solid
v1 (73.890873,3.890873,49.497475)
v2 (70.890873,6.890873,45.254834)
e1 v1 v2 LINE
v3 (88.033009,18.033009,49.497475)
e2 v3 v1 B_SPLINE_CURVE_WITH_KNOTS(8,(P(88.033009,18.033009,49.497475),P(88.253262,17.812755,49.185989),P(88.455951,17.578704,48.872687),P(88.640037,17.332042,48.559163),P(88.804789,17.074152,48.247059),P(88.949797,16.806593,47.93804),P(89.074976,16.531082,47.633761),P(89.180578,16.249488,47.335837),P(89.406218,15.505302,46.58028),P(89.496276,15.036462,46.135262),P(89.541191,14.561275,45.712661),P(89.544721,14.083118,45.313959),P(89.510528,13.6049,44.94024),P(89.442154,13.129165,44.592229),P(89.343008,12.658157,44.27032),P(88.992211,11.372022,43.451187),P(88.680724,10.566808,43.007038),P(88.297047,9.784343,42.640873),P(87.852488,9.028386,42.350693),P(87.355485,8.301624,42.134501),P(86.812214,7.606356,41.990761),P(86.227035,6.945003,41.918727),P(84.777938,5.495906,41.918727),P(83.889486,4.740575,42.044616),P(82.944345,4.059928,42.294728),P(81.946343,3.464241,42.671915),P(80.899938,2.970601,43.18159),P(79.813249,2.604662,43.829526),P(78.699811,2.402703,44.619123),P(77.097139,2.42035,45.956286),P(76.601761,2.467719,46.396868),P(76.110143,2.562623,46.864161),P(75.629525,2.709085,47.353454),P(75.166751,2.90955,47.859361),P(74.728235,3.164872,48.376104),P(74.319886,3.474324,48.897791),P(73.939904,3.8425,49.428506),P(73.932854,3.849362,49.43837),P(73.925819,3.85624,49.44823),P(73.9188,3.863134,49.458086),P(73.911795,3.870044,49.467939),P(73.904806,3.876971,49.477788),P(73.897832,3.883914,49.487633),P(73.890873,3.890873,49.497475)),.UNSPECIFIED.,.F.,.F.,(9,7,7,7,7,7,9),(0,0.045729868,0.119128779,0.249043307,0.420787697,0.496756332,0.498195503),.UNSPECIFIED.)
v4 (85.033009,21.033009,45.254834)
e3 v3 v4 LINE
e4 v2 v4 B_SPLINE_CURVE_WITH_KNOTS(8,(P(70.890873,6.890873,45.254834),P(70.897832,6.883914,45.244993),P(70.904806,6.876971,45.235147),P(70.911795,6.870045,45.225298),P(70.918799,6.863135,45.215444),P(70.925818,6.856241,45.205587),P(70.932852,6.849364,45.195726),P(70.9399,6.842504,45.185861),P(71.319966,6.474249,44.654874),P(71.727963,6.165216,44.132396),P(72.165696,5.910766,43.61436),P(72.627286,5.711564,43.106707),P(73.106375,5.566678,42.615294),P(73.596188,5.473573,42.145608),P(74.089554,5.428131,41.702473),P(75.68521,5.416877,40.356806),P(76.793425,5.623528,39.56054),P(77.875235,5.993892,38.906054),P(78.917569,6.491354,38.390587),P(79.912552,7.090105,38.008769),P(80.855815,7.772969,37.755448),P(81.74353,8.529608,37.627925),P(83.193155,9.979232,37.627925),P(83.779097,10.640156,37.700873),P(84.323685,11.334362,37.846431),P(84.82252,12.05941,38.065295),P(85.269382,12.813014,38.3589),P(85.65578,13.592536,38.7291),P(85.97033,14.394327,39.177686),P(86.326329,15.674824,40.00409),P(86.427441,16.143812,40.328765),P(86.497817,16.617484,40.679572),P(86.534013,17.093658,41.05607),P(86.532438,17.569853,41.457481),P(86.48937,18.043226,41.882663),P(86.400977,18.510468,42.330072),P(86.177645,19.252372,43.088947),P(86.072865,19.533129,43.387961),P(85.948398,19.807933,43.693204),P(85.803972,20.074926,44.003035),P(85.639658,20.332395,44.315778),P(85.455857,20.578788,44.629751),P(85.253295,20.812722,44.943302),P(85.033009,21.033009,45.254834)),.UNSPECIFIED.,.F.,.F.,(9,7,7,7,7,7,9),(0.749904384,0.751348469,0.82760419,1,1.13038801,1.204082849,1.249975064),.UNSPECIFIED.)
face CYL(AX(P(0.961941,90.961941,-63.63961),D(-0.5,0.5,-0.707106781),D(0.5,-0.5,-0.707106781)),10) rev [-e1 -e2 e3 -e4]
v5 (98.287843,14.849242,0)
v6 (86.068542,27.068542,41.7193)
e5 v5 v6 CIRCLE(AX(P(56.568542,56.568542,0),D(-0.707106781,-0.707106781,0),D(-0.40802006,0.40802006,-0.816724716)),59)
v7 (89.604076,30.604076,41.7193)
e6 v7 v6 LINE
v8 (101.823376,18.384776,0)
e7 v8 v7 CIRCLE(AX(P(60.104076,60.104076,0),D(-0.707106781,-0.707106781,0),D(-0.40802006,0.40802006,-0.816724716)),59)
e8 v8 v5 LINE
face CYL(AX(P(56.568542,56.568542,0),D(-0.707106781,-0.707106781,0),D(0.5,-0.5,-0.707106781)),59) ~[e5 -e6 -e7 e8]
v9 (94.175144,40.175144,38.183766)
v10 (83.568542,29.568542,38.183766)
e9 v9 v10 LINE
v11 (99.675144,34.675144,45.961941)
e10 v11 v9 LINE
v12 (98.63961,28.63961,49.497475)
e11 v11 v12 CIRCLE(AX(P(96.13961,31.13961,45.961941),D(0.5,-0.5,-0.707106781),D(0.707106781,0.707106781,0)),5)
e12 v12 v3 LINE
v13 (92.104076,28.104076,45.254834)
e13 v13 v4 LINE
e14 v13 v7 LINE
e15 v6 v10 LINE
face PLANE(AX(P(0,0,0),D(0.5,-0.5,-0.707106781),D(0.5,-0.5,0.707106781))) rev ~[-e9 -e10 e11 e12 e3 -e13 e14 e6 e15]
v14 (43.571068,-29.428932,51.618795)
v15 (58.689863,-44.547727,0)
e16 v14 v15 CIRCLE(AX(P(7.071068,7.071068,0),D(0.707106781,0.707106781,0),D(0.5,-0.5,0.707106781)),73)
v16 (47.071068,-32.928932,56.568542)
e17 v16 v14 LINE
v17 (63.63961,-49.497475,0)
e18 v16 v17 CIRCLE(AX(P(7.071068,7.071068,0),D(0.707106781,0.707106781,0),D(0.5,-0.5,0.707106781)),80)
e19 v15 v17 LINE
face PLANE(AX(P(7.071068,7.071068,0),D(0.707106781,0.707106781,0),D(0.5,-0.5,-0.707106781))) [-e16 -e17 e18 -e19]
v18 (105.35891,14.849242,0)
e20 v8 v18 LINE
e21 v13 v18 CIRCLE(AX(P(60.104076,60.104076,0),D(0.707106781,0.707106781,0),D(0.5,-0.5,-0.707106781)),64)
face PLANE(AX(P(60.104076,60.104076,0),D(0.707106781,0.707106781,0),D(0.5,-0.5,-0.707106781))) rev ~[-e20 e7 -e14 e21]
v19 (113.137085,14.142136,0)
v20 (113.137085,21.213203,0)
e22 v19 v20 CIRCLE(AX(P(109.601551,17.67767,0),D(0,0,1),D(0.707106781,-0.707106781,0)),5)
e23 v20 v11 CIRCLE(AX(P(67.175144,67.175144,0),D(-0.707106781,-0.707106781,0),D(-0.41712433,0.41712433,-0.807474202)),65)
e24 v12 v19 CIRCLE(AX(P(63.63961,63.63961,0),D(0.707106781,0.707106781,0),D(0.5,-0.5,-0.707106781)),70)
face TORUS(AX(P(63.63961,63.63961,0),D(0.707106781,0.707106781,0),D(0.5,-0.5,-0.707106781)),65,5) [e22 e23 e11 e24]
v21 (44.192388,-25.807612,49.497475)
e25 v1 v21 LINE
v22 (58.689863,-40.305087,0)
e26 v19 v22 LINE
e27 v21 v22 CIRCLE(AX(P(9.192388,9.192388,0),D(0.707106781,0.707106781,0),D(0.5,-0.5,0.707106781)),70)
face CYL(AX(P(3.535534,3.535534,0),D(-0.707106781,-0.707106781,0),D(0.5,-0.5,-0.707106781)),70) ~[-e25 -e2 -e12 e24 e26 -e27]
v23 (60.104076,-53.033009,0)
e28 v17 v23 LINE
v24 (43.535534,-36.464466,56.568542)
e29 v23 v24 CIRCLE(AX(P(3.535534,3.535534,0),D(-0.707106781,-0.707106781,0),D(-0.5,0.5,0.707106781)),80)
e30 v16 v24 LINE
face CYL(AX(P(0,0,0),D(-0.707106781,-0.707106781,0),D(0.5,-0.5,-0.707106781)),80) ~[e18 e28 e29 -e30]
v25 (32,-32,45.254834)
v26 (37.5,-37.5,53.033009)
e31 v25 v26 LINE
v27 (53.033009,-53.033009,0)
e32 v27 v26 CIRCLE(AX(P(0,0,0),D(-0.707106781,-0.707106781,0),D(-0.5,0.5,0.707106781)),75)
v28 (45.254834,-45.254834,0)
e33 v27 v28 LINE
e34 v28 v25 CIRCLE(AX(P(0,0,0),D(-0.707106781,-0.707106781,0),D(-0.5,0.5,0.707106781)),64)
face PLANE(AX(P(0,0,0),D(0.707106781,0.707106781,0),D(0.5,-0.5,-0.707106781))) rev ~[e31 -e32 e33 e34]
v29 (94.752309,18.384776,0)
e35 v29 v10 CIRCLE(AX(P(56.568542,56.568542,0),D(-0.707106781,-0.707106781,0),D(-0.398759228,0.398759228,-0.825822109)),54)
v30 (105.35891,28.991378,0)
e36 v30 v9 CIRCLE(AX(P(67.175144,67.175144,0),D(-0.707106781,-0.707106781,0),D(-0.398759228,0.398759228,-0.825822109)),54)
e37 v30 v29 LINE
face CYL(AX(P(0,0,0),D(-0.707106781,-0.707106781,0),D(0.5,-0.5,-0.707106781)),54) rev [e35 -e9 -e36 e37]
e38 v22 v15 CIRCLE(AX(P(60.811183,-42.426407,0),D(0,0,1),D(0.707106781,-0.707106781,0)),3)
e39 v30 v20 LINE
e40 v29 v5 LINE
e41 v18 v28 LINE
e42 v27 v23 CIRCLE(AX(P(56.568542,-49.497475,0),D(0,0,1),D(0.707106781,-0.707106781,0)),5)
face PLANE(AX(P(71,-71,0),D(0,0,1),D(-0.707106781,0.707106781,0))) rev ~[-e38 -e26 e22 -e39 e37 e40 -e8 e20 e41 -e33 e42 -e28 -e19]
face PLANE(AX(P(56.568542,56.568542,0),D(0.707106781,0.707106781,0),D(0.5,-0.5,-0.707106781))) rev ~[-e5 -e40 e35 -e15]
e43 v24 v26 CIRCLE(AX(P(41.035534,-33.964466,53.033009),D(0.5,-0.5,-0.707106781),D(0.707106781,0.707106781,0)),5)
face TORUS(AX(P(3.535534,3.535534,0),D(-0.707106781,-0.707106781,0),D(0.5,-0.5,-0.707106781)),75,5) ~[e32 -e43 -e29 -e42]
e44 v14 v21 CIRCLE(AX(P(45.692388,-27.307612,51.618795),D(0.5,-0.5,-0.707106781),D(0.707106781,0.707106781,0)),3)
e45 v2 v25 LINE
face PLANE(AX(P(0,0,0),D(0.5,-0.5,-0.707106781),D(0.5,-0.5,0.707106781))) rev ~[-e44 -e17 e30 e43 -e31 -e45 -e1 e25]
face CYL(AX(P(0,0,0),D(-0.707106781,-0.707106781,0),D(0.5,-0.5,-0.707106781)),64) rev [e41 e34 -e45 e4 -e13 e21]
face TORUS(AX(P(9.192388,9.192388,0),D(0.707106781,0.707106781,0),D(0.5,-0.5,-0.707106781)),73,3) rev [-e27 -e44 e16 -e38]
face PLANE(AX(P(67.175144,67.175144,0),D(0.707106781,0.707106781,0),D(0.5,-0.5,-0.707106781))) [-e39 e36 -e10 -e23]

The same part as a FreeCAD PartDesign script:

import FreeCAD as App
import Part
import Sketcher


def edges_at(feature, points):
    """Names of the edges that pass closest to the given points."""
    edges = feature.Shape.Edges
    near = lambda p: min(range(len(edges)), key=lambda i: edges[i].distToShape(Part.Vertex(*p))[0])
    return sorted({f"Edge{near(p) + 1}" for p in points})


def add_polygon(sketch, points):
    """Adds a closed chain of lines whose ends are joined by coincident constraints."""
    first, n = sketch.GeometryCount, len(points)
    for a, b in zip(points, points[1:] + points[:1]):
        sketch.addGeometry(Part.LineSegment(App.Vector(*a, 0), App.Vector(*b, 0)), False)
    for i in range(n):
        sketch.addConstraint(Sketcher.Constraint("Coincident", first + i, 2, first + (i + 1) % n, 1))

doc = App.newDocument("Part")
body = doc.addObject("PartDesign::Body", "Body")

sketch1 = doc.addObject("Sketcher::SketchObject", "Sketch")
body.addObject(sketch1)
sketch1.AttachmentSupport = (doc.XY_Plane, [""])
sketch1.MapMode = "FlatFace"
add_polygon(sketch1, [(0, 100), (0, 0), (100, 0), (100, 100)])
sketch1.addConstraint(Sketcher.Constraint("Vertical", 0))
sketch1.addConstraint(Sketcher.Constraint("Horizontal", 1))
sketch1.addConstraint(Sketcher.Constraint("Vertical", 2))
sketch1.addConstraint(Sketcher.Constraint("Horizontal", 3))
sketch1.addConstraint(Sketcher.Constraint("Coincident", 0, 2, -1, 1))
sketch1.addConstraint(Sketcher.Constraint("Equal", 3, 0))
sketch1.addConstraint(Sketcher.Constraint("DistanceX", 1, 1, 1, 2, 100.0))
pad1 = doc.addObject("PartDesign::Pad", "Pad")
body.addObject(pad1)
pad1.Profile = sketch1
pad1.Length = 100
body2 = doc.addObject("PartDesign::Body", "Body001")
doc.recompute()

body.Placement = App.Placement(App.Vector(0, 0, 0), App.Rotation(App.Vector(0, 0, 1), 45))
boolean = doc.addObject("PartDesign::Boolean", "Boolean")
body2.addObject(boolean)
boolean.Type = "Fuse"
boolean.addObjects([body])
body3 = doc.addObject("PartDesign::Body", "Body002")

sketch2 = doc.addObject("Sketcher::SketchObject", "Sketch001")
body3.addObject(sketch2)
sketch2.AttachmentSupport = (doc.getObject("XY_Plane002"), [""])
sketch2.MapMode = "FlatFace"
add_polygon(sketch2, [(0, 200), (0, 0), (100, 0), (100, 200)])
sketch2.addConstraint(Sketcher.Constraint("Vertical", 0))
sketch2.addConstraint(Sketcher.Constraint("Horizontal", 1))
sketch2.addConstraint(Sketcher.Constraint("Vertical", 2))
sketch2.addConstraint(Sketcher.Constraint("Horizontal", 3))
sketch2.addConstraint(Sketcher.Constraint("Coincident", 0, 2, -1, 1))
sketch2.addConstraint(Sketcher.Constraint("DistanceX", 1, 1, 1, 2, 100.0))
sketch2.addConstraint(Sketcher.Constraint("DistanceY", 0, 2, 0, 1, 200.0))
pad2 = doc.addObject("PartDesign::Pad", "Pad001")
body3.addObject(pad2)
pad2.Profile = sketch2
pad2.Length = 100
body4 = doc.addObject("PartDesign::Body", "Body003")
doc.recompute()

body3.Placement = App.Placement(App.Vector(71, -71, 0), App.Rotation(App.Vector(0, 0, 1), 45))
boolean2 = doc.addObject("PartDesign::Boolean", "Boolean001")
body4.addObject(boolean2)
boolean2.Type = "Fuse"
boolean2.addObjects([body3])
body5 = doc.addObject("PartDesign::Body", "Body004")

sketch3 = doc.addObject("Sketcher::SketchObject", "Sketch002")
body5.addObject(sketch3)
sketch3.AttachmentSupport = (doc.getObject("XY_Plane004"), [""])
sketch3.MapMode = "FlatFace"
add_polygon(sketch3, [(0, -100), (0, 0), (-100, 0), (-100, -100)])
sketch3.addConstraint(Sketcher.Constraint("Vertical", 0))
sketch3.addConstraint(Sketcher.Constraint("Horizontal", 1))
sketch3.addConstraint(Sketcher.Constraint("Vertical", 2))
sketch3.addConstraint(Sketcher.Constraint("Horizontal", 3))
sketch3.addConstraint(Sketcher.Constraint("Coincident", 0, 2, -1, 1))
sketch3.addConstraint(Sketcher.Constraint("Equal", 3, 0))
sketch3.addConstraint(Sketcher.Constraint("DistanceX", 1, 2, 1, 1, 100.0))
pad3 = doc.addObject("PartDesign::Pad", "Pad002")
body5.addObject(pad3)
pad3.Profile = sketch3
pad3.Length = 100
body6 = doc.addObject("PartDesign::Body", "Body005")

sketch4 = doc.addObject("Sketcher::SketchObject", "Sketch003")
body6.addObject(sketch4)
sketch4.AttachmentSupport = (doc.getObject("XY_Plane005"), [""])
sketch4.MapMode = "FlatFace"
sketch4.AttachmentOffset = App.Placement(App.Vector(0, 0, 20), App.Rotation())
add_polygon(sketch4, [(-83, 10), (-83, -10), (-63, -10), (-63, 10)])
sketch4.addConstraint(Sketcher.Constraint("Vertical", 0))
sketch4.addConstraint(Sketcher.Constraint("Horizontal", 1))
sketch4.addConstraint(Sketcher.Constraint("Vertical", 2))
sketch4.addConstraint(Sketcher.Constraint("Horizontal", 3))
sketch4.addConstraint(Sketcher.Constraint("Equal", 3, 0))
sketch4.addConstraint(Sketcher.Constraint("DistanceX", 1, 1, 1, 2, 20.0))
sketch4.addConstraint(Sketcher.Constraint("DistanceX", 0, 2, -1, 1, 83.0))
sketch4.addConstraint(Sketcher.Constraint("DistanceY", 0, 2, -1, 1, 10.0))
pad4 = doc.addObject("PartDesign::Pad", "Pad003")
body6.addObject(pad4)
pad4.Profile = sketch4
pad4.Length = 80
body7 = doc.addObject("PartDesign::Body", "Body006")

sketch5 = doc.addObject("Sketcher::SketchObject", "Sketch004")
body7.addObject(sketch5)
sketch5.AttachmentSupport = (doc.getObject("XY_Plane006"), [""])
sketch5.MapMode = "FlatFace"
sketch5.AttachmentOffset = App.Placement(App.Vector(0, 0, 20), App.Rotation())
add_polygon(sketch5, [(63, 10), (63, -10), (83, -10), (83, 10)])
sketch5.addConstraint(Sketcher.Constraint("Vertical", 0))
sketch5.addConstraint(Sketcher.Constraint("Horizontal", 1))
sketch5.addConstraint(Sketcher.Constraint("Vertical", 2))
sketch5.addConstraint(Sketcher.Constraint("Horizontal", 3))
sketch5.addConstraint(Sketcher.Constraint("Equal", 3, 0))
sketch5.addConstraint(Sketcher.Constraint("DistanceX", 1, 1, 1, 2, 20.0))
sketch5.addConstraint(Sketcher.Constraint("DistanceX", -1, 1, 0, 2, 63.0))
sketch5.addConstraint(Sketcher.Constraint("DistanceY", 0, 2, -1, 1, 10.0))
pad5 = doc.addObject("PartDesign::Pad", "Pad004")
body7.addObject(pad5)
pad5.Profile = sketch5
pad5.Length = 80
body8 = doc.addObject("PartDesign::Body", "Body007")

sketch6 = doc.addObject("Sketcher::SketchObject", "Sketch005")
body8.addObject(sketch6)
sketch6.AttachmentSupport = (doc.getObject("XY_Plane007"), [""])
sketch6.MapMode = "FlatFace"
add_polygon(sketch6, [(0, 25), (0, 0), (10, 0), (10, 25)])
sketch6.addConstraint(Sketcher.Constraint("Vertical", 0))
sketch6.addConstraint(Sketcher.Constraint("Horizontal", 1))
sketch6.addConstraint(Sketcher.Constraint("Vertical", 2))
sketch6.addConstraint(Sketcher.Constraint("Horizontal", 3))
sketch6.addConstraint(Sketcher.Constraint("Coincident", 0, 2, -1, 1))
sketch6.addConstraint(Sketcher.Constraint("DistanceX", 1, 1, 1, 2, 10.0))
sketch6.addConstraint(Sketcher.Constraint("DistanceY", 0, 2, 0, 1, 25.0))
pad6 = doc.addObject("PartDesign::Pad", "Pad005")
body8.addObject(pad6)
pad6.Profile = sketch6
pad6.Length = 35
body9 = doc.addObject("PartDesign::Body", "Body008")
doc.recompute()

body8.Placement = App.Placement(App.Vector(0, 0, 0), App.Rotation(App.Vector(0, 1, 0), 345))
boolean3 = doc.addObject("PartDesign::Boolean", "Boolean002")
body9.addObject(boolean3)
boolean3.Type = "Fuse"
boolean3.addObjects([body8])
body10 = doc.addObject("PartDesign::Body", "Body009")
doc.recompute()

body9.Placement = App.Placement(App.Vector(-9.95, 48, 64), App.Rotation(App.Vector(0, 0, 1), 0))
boolean4 = doc.addObject("PartDesign::Boolean", "Boolean003")
body10.addObject(boolean4)
boolean4.Type = "Fuse"
boolean4.addObjects([body9])
body11 = doc.addObject("PartDesign::Body", "Body010")

sketch7 = doc.addObject("Sketcher::SketchObject", "Sketch006")
body11.addObject(sketch7)
sketch7.AttachmentSupport = (doc.getObject("XY_Plane010"), [""])
sketch7.MapMode = "FlatFace"
add_polygon(sketch7, [(0, 25), (0, 0), (10, 0), (10, 25)])
sketch7.addConstraint(Sketcher.Constraint("Vertical", 0))
sketch7.addConstraint(Sketcher.Constraint("Horizontal", 1))
sketch7.addConstraint(Sketcher.Constraint("Vertical", 2))
sketch7.addConstraint(Sketcher.Constraint("Horizontal", 3))
sketch7.addConstraint(Sketcher.Constraint("Coincident", 0, 2, -1, 1))
sketch7.addConstraint(Sketcher.Constraint("DistanceX", 1, 1, 1, 2, 10.0))
sketch7.addConstraint(Sketcher.Constraint("DistanceY", 0, 2, 0, 1, 25.0))
pad7 = doc.addObject("PartDesign::Pad", "Pad006")
body11.addObject(pad7)
pad7.Profile = sketch7
pad7.Length = 35
body12 = doc.addObject("PartDesign::Body", "Body011")
doc.recompute()

body11.Placement = App.Placement(App.Vector(0, 0, 0), App.Rotation(App.Vector(0, 1, 0), 15))
boolean5 = doc.addObject("PartDesign::Boolean", "Boolean004")
body12.addObject(boolean5)
boolean5.Type = "Fuse"
boolean5.addObjects([body11])
body13 = doc.addObject("PartDesign::Body", "Body012")
doc.recompute()

body12.Placement = App.Placement(App.Vector(0, 48, 65), App.Rotation(App.Vector(0, 0, 1), 0))
boolean6 = doc.addObject("PartDesign::Boolean", "Boolean005")
body13.addObject(boolean6)
boolean6.Type = "Fuse"
boolean6.addObjects([body12])
body14 = doc.addObject("PartDesign::Body", "Body013")

sketch8 = doc.addObject("Sketcher::SketchObject", "Sketch007")
body14.addObject(sketch8)
sketch8.AttachmentSupport = (doc.getObject("XY_Plane013"), [""])
sketch8.MapMode = "FlatFace"
sketch8.AttachmentOffset = App.Placement(App.Vector(0, 0, 65), App.Rotation())
add_polygon(sketch8, [(-10, 73), (-10, 48), (10, 48), (10, 73)])
sketch8.addConstraint(Sketcher.Constraint("Vertical", 0))
sketch8.addConstraint(Sketcher.Constraint("Horizontal", 1))
sketch8.addConstraint(Sketcher.Constraint("Vertical", 2))
sketch8.addConstraint(Sketcher.Constraint("Horizontal", 3))
sketch8.addConstraint(Sketcher.Constraint("DistanceX", 1, 1, 1, 2, 20.0))
sketch8.addConstraint(Sketcher.Constraint("DistanceY", 0, 2, 0, 1, 25.0))
sketch8.addConstraint(Sketcher.Constraint("DistanceX", 0, 2, -1, 1, 10.0))
sketch8.addConstraint(Sketcher.Constraint("DistanceY", -1, 1, 0, 2, 48.0))
pad8 = doc.addObject("PartDesign::Pad", "Pad007")
body14.addObject(pad8)
pad8.Profile = sketch8
pad8.Length = 35
body15 = doc.addObject("PartDesign::Body", "Body014")

sketch9 = doc.addObject("Sketcher::SketchObject", "Sketch008")
body15.addObject(sketch9)
sketch9.AttachmentSupport = (doc.getObject("XY_Plane014"), [""])
sketch9.MapMode = "FlatFace"
sketch9.addGeometry(Part.Circle(App.Vector(0, 0, 0), App.Vector(0, 0, 1), 10), False)
sketch9.addConstraint(Sketcher.Constraint("Coincident", 0, 3, -1, 1))
sketch9.addConstraint(Sketcher.Constraint("Diameter", 0, 20.0))
pad9 = doc.addObject("PartDesign::Pad", "Pad008")
body15.addObject(pad9)
pad9.Profile = sketch9
pad9.Length = 180
body16 = doc.addObject("PartDesign::Body", "Body015")
doc.recompute()

body15.Placement = App.Placement(App.Vector(0, 0, 0), App.Rotation(App.Vector(1, 0, 0), 90))
boolean7 = doc.addObject("PartDesign::Boolean", "Boolean006")
body16.addObject(boolean7)
boolean7.Type = "Fuse"
boolean7.addObjects([body15])
body17 = doc.addObject("PartDesign::Body", "Body016")
doc.recompute()

body16.Placement = App.Placement(App.Vector(0, 90, 65), App.Rotation(App.Vector(0, 0, 1), 0))
boolean8 = doc.addObject("PartDesign::Boolean", "Boolean007")
body17.addObject(boolean8)
boolean8.Type = "Fuse"
boolean8.addObjects([body16])
body18 = doc.addObject("PartDesign::Body", "Body017")

sketch10 = doc.addObject("Sketcher::SketchObject", "Sketch009")
body18.addObject(sketch10)
sketch10.AttachmentSupport = (doc.getObject("XY_Plane017"), [""])
sketch10.MapMode = "FlatFace"
sketch10.addGeometry(Part.Circle(App.Vector(0, 0, 0), App.Vector(0, 0, 1), 54), False)
sketch10.addConstraint(Sketcher.Constraint("Coincident", 0, 3, -1, 1))
sketch10.addConstraint(Sketcher.Constraint("Diameter", 0, 108.0))
pad10 = doc.addObject("PartDesign::Pad", "Pad009")
body18.addObject(pad10)
pad10.Profile = sketch10
pad10.Length = 100
body19 = doc.addObject("PartDesign::Body", "Body018")

sketch11 = doc.addObject("Sketcher::SketchObject", "Sketch010")
body19.addObject(sketch11)
sketch11.AttachmentSupport = (doc.getObject("XY_Plane018"), [""])
sketch11.MapMode = "FlatFace"
sketch11.AttachmentOffset = App.Placement(App.Vector(0, 0, 80), App.Rotation())
sketch11.addGeometry(Part.Circle(App.Vector(0, 0, 0), App.Vector(0, 0, 1), 59), False)
sketch11.addConstraint(Sketcher.Constraint("Coincident", 0, 3, -1, 1))
sketch11.addConstraint(Sketcher.Constraint("Diameter", 0, 118.0))
pad11 = doc.addObject("PartDesign::Pad", "Pad010")
body19.addObject(pad11)
pad11.Profile = sketch11
pad11.Length = 10
body20 = doc.addObject("PartDesign::Body", "Body019")

sketch12 = doc.addObject("Sketcher::SketchObject", "Sketch011")
body20.addObject(sketch12)
sketch12.AttachmentSupport = (doc.getObject("XY_Plane019"), [""])
sketch12.MapMode = "FlatFace"
sketch12.addGeometry(Part.Circle(App.Vector(0, 0, 0), App.Vector(0, 0, 1), 64), False)
sketch12.addConstraint(Sketcher.Constraint("Coincident", 0, 3, -1, 1))
sketch12.addConstraint(Sketcher.Constraint("Diameter", 0, 128.0))
pad12 = doc.addObject("PartDesign::Pad", "Pad011")
body20.addObject(pad12)
pad12.Profile = sketch12
pad12.Length = 85
body21 = doc.addObject("PartDesign::Body", "Body020")

sketch13 = doc.addObject("Sketcher::SketchObject", "Sketch012")
body21.addObject(sketch13)
sketch13.AttachmentSupport = (doc.getObject("XY_Plane020"), [""])
sketch13.MapMode = "FlatFace"
sketch13.AttachmentOffset = App.Placement(App.Vector(0, 0, 5), App.Rotation())
sketch13.addGeometry(Part.Circle(App.Vector(0, 0, 0), App.Vector(0, 0, 1), 70), False)
sketch13.addConstraint(Sketcher.Constraint("Coincident", 0, 3, -1, 1))
sketch13.addConstraint(Sketcher.Constraint("Diameter", 0, 140.0))
pad13 = doc.addObject("PartDesign::Pad", "Pad012")
body21.addObject(pad13)
pad13.Profile = sketch13
pad13.Length = 90
body22 = doc.addObject("PartDesign::Body", "Body021")
body22.AllowCompound = True

sketch14 = doc.addObject("Sketcher::SketchObject", "Sketch013")
body22.addObject(sketch14)
sketch14.AttachmentSupport = (doc.getObject("XY_Plane021"), [""])
sketch14.MapMode = "FlatFace"
sketch14.addGeometry(Part.Circle(App.Vector(0, 0, 0), App.Vector(0, 0, 1), 80), False)
sketch14.addConstraint(Sketcher.Constraint("Coincident", 0, 3, -1, 1))
sketch14.addConstraint(Sketcher.Constraint("Diameter", 0, 160.0))
pad14 = doc.addObject("PartDesign::Pad", "Pad013")
body22.addObject(pad14)
pad14.Profile = sketch14
pad14.Length = 10
doc.recompute()

boolean9 = doc.addObject("PartDesign::Boolean", "Boolean008")
body22.addObject(boolean9)
boolean9.Type = "Fuse"
boolean9.addObjects([body21])
doc.recompute()

boolean10 = doc.addObject("PartDesign::Boolean", "Boolean009")
body22.addObject(boolean10)
boolean10.Type = "Cut"
boolean10.addObjects([body20])
doc.recompute()

boolean11 = doc.addObject("PartDesign::Boolean", "Boolean010")
body22.addObject(boolean11)
boolean11.Type = "Fuse"
boolean11.addObjects([body19])
doc.recompute()

boolean12 = doc.addObject("PartDesign::Boolean", "Boolean011")
body22.addObject(boolean12)
boolean12.Type = "Cut"
boolean12.addObjects([body18])
doc.recompute()

fillet = doc.addObject("PartDesign::Fillet", "Fillet")
body22.addObject(fillet)
fillet.Base = (boolean12, edges_at(boolean12, [(-70, 0, 10)]))
fillet.Radius = 3
doc.recompute()

fillet2 = doc.addObject("PartDesign::Fillet", "Fillet001")
body22.addObject(fillet2)
fillet2.Base = (fillet, edges_at(fillet, [(-80, 0, 0)]))
fillet2.Radius = 5
doc.recompute()

fillet3 = doc.addObject("PartDesign::Fillet", "Fillet002")
body22.addObject(fillet3)
fillet3.Base = (fillet2, edges_at(fillet2, [(-70, 0, 95)]))
fillet3.Radius = 5
doc.recompute()

boolean13 = doc.addObject("PartDesign::Boolean", "Boolean012")
body22.addObject(boolean13)
boolean13.Type = "Cut"
boolean13.addObjects([body17])
doc.recompute()

boolean14 = doc.addObject("PartDesign::Boolean", "Boolean013")
body22.addObject(boolean14)
boolean14.Type = "Cut"
boolean14.addObjects([body14])
doc.recompute()

boolean15 = doc.addObject("PartDesign::Boolean", "Boolean014")
body22.addObject(boolean15)
boolean15.Type = "Cut"
boolean15.addObjects([body13])
doc.recompute()

boolean16 = doc.addObject("PartDesign::Boolean", "Boolean015")
body22.addObject(boolean16)
boolean16.Type = "Cut"
boolean16.addObjects([body10])
doc.recompute()

boolean17 = doc.addObject("PartDesign::Boolean", "Boolean016")
body22.addObject(boolean17)
boolean17.Type = "Cut"
boolean17.addObjects([body7])
doc.recompute()

boolean18 = doc.addObject("PartDesign::Boolean", "Boolean017")
body22.addObject(boolean18)
boolean18.Type = "Cut"
boolean18.addObjects([body6])
doc.recompute()

boolean19 = doc.addObject("PartDesign::Boolean", "Boolean018")
body22.addObject(boolean19)
boolean19.Type = "Cut"
boolean19.addObjects([body5])
doc.recompute()

boolean20 = doc.addObject("PartDesign::Boolean", "Boolean019")
body22.addObject(boolean20)
boolean20.Type = "Cut"
boolean20.addObjects([body4])
body23 = doc.addObject("PartDesign::Body", "Body022")
body23.AllowCompound = True
doc.recompute()

body22.Placement = App.Placement(App.Vector(0, 0, 0), App.Rotation(App.Vector(1, 0, 0), 270))
boolean21 = doc.addObject("PartDesign::Boolean", "Boolean020")
body23.addObject(boolean21)
boolean21.Type = "Fuse"
boolean21.addObjects([body22])
body24 = doc.addObject("PartDesign::Body", "Body023")
body24.AllowCompound = True
doc.recompute()

body23.Placement = App.Placement(App.Vector(0, 0, 0), App.Rotation(App.Vector(0, 1, 0), 45))
boolean22 = doc.addObject("PartDesign::Boolean", "Boolean021")
body24.addObject(boolean22)
boolean22.Type = "Fuse"
boolean22.addObjects([body23])
body25 = doc.addObject("PartDesign::Body", "Body024")
body25.AllowCompound = True
doc.recompute()

body24.Placement = App.Placement(App.Vector(0, 0, 0), App.Rotation(App.Vector(0, 0, 1), 315))
boolean23 = doc.addObject("PartDesign::Boolean", "Boolean022")
body25.addObject(boolean23)
boolean23.Type = "Fuse"
boolean23.addObjects([body24])
doc.recompute()

boolean24 = doc.addObject("PartDesign::Boolean", "Boolean023")
body25.addObject(boolean24)
boolean24.Type = "Cut"
boolean24.addObjects([body2])

doc.recompute()
